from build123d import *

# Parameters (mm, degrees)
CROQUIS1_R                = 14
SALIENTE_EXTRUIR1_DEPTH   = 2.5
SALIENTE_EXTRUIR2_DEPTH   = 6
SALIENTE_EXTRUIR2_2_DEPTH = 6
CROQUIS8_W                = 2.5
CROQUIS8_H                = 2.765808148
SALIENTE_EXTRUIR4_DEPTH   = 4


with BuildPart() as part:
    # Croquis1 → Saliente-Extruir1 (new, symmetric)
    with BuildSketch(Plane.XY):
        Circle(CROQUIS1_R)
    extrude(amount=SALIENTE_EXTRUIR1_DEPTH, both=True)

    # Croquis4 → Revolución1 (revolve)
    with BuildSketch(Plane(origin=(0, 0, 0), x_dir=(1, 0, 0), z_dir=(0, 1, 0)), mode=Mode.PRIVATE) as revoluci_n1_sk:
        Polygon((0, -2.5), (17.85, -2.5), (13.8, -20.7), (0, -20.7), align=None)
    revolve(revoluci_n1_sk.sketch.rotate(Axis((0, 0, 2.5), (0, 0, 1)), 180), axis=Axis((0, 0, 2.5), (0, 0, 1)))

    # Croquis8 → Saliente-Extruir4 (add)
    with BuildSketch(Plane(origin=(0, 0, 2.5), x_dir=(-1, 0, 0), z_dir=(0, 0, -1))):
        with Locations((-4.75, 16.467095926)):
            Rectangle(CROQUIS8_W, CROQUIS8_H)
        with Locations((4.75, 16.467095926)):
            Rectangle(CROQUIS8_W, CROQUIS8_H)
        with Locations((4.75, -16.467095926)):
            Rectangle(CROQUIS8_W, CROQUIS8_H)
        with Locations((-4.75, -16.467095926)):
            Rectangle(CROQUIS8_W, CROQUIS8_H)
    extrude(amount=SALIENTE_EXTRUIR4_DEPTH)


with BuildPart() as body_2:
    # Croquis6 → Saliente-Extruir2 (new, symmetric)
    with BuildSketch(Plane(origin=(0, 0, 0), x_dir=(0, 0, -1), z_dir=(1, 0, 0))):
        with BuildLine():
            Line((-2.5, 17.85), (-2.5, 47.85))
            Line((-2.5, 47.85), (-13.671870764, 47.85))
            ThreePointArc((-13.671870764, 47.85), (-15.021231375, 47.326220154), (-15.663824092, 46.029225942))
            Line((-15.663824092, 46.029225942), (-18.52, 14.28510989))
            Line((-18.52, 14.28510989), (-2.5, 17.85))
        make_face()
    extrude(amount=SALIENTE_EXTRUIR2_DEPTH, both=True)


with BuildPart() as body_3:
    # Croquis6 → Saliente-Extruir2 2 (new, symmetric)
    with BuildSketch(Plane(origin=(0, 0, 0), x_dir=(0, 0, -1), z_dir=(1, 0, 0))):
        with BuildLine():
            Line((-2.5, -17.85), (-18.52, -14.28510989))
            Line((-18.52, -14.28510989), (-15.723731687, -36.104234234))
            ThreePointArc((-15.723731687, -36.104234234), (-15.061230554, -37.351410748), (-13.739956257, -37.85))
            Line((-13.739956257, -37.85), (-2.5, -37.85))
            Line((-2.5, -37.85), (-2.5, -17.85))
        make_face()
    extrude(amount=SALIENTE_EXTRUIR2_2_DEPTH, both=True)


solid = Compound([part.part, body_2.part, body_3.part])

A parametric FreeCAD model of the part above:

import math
import FreeCAD as App
import Part
import Sketcher

V = App.Vector

doc = App.newDocument("Part")
body = doc.addObject("PartDesign::Body", "Body")

# Sketch on XY plane
sketch1 = doc.addObject("Sketcher::SketchObject", "Sketch")
body.addObject(sketch1)
sketch1.AttachmentSupport = (doc.XY_Plane, [""])
sketch1.MapMode = "FlatFace"
sketch1.addGeometry(Part.Circle(V(0, 0, 0), V(0, 0, 1), 14), False)
sketch1.addConstraint(Sketcher.Constraint("Coincident", 0, 3, -1, 1))
sketch1.addConstraint(Sketcher.Constraint("Diameter", 0, 28.0))
pad1 = doc.addObject("PartDesign::Pad", "Pad")
body.addObject(pad1)
pad1.Profile = sketch1
pad1.Length = 5
pad1.Midplane = True

# Sketch on XZ plane
sketch2 = doc.addObject("Sketcher::SketchObject", "Sketch001")
body.addObject(sketch2)
sketch2.AttachmentSupport = (doc.XZ_Plane, [""])
sketch2.MapMode = "FlatFace"
sketch2.addGeometry(Part.LineSegment(V(17.85, 2.5, 0), V(0, 2.5, 0)), False)
sketch2.addGeometry(Part.LineSegment(V(0, 2.5, 0), V(0, 20.7, 0)), False)
sketch2.addGeometry(Part.LineSegment(V(0, 20.7, 0), V(13.8, 20.7, 0)), False)
sketch2.addGeometry(Part.LineSegment(V(13.8, 20.7, 0), V(17.85, 2.5, 0)), False)
sketch2.addConstraint(Sketcher.Constraint("Coincident", 0, 2, 1, 1))
sketch2.addConstraint(Sketcher.Constraint("Coincident", 1, 2, 2, 1))
sketch2.addConstraint(Sketcher.Constraint("Coincident", 2, 2, 3, 1))
sketch2.addConstraint(Sketcher.Constraint("Coincident", 3, 2, 0, 1))
sketch2.addConstraint(Sketcher.Constraint("Horizontal", 0))
sketch2.addConstraint(Sketcher.Constraint("Vertical", 1))
sketch2.addConstraint(Sketcher.Constraint("Horizontal", 2))
sketch2.addConstraint(Sketcher.Constraint("PointOnObject", 0, 2, -2))
sketch2.addConstraint(Sketcher.Constraint("DistanceX", 2, 1, 2, 2, 13.8))
sketch2.addConstraint(Sketcher.Constraint("DistanceY", 1, 1, 1, 2, 18.2))
sketch2.addConstraint(Sketcher.Constraint("DistanceX", 0, 2, 0, 1, 17.85))
sketch2.addConstraint(Sketcher.Constraint("DistanceY", -1, 1, 0, 2, 2.5))
revolution = doc.addObject("PartDesign::Revolution", "Revolution")
body.addObject(revolution)
revolution.Profile = sketch2
revolution.ReferenceAxis = (sketch2, ["V_Axis"])
revolution.Angle = 360

# Sketch on XY plane
sketch3 = doc.addObject("Sketcher::SketchObject", "Sketch002")
body.addObject(sketch3)
sketch3.AttachmentSupport = (doc.XY_Plane, [""])
sketch3.MapMode = "FlatFace"
sketch3.AttachmentOffset = App.Placement(V(0, 0, 2.5), App.Rotation())
sketch3.addGeometry(Part.LineSegment(V(6, 17.85, 0), V(6, 15.084192, 0)), False)
sketch3.addGeometry(Part.LineSegment(V(6, 15.084192, 0), V(3.5, 15.084192, 0)), False)
sketch3.addGeometry(Part.LineSegment(V(3.5, 15.084192, 0), V(3.5, 17.85, 0)), False)
sketch3.addGeometry(Part.LineSegment(V(3.5, 17.85, 0), V(6, 17.85, 0)), False)
sketch3.addGeometry(Part.LineSegment(V(-3.5, 17.85, 0), V(-3.5, 15.084192, 0)), False)
sketch3.addGeometry(Part.LineSegment(V(-3.5, 15.084192, 0), V(-6, 15.084192, 0)), False)
sketch3.addGeometry(Part.LineSegment(V(-6, 15.084192, 0), V(-6, 17.85, 0)), False)
sketch3.addGeometry(Part.LineSegment(V(-6, 17.85, 0), V(-3.5, 17.85, 0)), False)
sketch3.addGeometry(Part.LineSegment(V(-3.5, -15.084192, 0), V(-3.5, -17.85, 0)), False)
sketch3.addGeometry(Part.LineSegment(V(-3.5, -17.85, 0), V(-6, -17.85, 0)), False)
sketch3.addGeometry(Part.LineSegment(V(-6, -17.85, 0), V(-6, -15.084192, 0)), False)
sketch3.addGeometry(Part.LineSegment(V(-6, -15.084192, 0), V(-3.5, -15.084192, 0)), False)
sketch3.addGeometry(Part.LineSegment(V(6, -15.084192, 0), V(6, -17.85, 0)), False)
sketch3.addGeometry(Part.LineSegment(V(6, -17.85, 0), V(3.5, -17.85, 0)), False)
sketch3.addGeometry(Part.LineSegment(V(3.5, -17.85, 0), V(3.5, -15.084192, 0)), False)
sketch3.addGeometry(Part.LineSegment(V(3.5, -15.084192, 0), V(6, -15.084192, 0)), False)
sketch3.addConstraint(Sketcher.Constraint("Coincident", 0, 2, 1, 1))
sketch3.addConstraint(Sketcher.Constraint("Coincident", 1, 2, 2, 1))
sketch3.addConstraint(Sketcher.Constraint("Coincident", 2, 2, 3, 1))
sketch3.addConstraint(Sketcher.Constraint("Coincident", 3, 2, 0, 1))
sketch3.addConstraint(Sketcher.Constraint("Coincident", 4, 2, 5, 1))
sketch3.addConstraint(Sketcher.Constraint("Coincident", 5, 2, 6, 1))
sketch3.addConstraint(Sketcher.Constraint("Coincident", 6, 2, 7, 1))
sketch3.addConstraint(Sketcher.Constraint("Coincident", 7, 2, 4, 1))
sketch3.addConstraint(Sketcher.Constraint("Coincident", 8, 2, 9, 1))
sketch3.addConstraint(Sketcher.Constraint("Coincident", 9, 2, 10, 1))
sketch3.addConstraint(Sketcher.Constraint("Coincident", 10, 2, 11, 1))
sketch3.addConstraint(Sketcher.Constraint("Coincident", 11, 2, 8, 1))
sketch3.addConstraint(Sketcher.Constraint("Coincident", 12, 2, 13, 1))
sketch3.addConstraint(Sketcher.Constraint("Coincident", 13, 2, 14, 1))
sketch3.addConstraint(Sketcher.Constraint("Coincident", 14, 2, 15, 1))
sketch3.addConstraint(Sketcher.Constraint("Coincident", 15, 2, 12, 1))
sketch3.addConstraint(Sketcher.Constraint("Vertical", 0))
sketch3.addConstraint(Sketcher.Constraint("Horizontal", 1))
sketch3.addConstraint(Sketcher.Constraint("Vertical", 2))
sketch3.addConstraint(Sketcher.Constraint("Horizontal", 3))
sketch3.addConstraint(Sketcher.Constraint("Vertical", 4))
sketch3.addConstraint(Sketcher.Constraint("Horizontal", 5))
sketch3.addConstraint(Sketcher.Constraint("Vertical", 6))
sketch3.addConstraint(Sketcher.Constraint("Horizontal", 7))
sketch3.addConstraint(Sketcher.Constraint("Vertical", 8))
sketch3.addConstraint(Sketcher.Constraint("Horizontal", 9))
sketch3.addConstraint(Sketcher.Constraint("Vertical", 10))
sketch3.addConstraint(Sketcher.Constraint("Horizontal", 11))
sketch3.addConstraint(Sketcher.Constraint("Vertical", 12))
sketch3.addConstraint(Sketcher.Constraint("Horizontal", 13))
sketch3.addConstraint(Sketcher.Constraint("Vertical", 14))
sketch3.addConstraint(Sketcher.Constraint("Horizontal", 15))
sketch3.addConstraint(Sketcher.Constraint("Symmetric", 2, 2, 8, 2, -1, 1))
sketch3.addConstraint(Sketcher.Constraint("Symmetric", 0, 2, 10, 2, -1, 1))
sketch3.addConstraint(Sketcher.Constraint("Symmetric", 6, 2, 12, 2, -1, 1))
sketch3.addConstraint(Sketcher.Constraint("Symmetric", 4, 2, 14, 2, -1, 1))
sketch3.addConstraint(Sketcher.Constraint("Symmetric", 1, 2, 4, 2, -2))
sketch3.addConstraint(Sketcher.Constraint("Symmetric", 3, 2, 6, 2, -2))
sketch3.addConstraint(Sketcher.Constraint("DistanceX", 1, 2, 1, 1, 2.5))
sketch3.addConstraint(Sketcher.Constraint("DistanceX", -1, 1, 0, 2, 6.0))
sketch3.addConstraint(Sketcher.Constraint("DistanceY", 8, 2, 7, 2, 35.7))
sketch3.addConstraint(Sketcher.Constraint("DistanceY", 0, 2, 0, 1, 2.765808))
pad2 = doc.addObject("PartDesign::Pad", "Pad001")
body.addObject(pad2)
pad2.Profile = sketch3
pad2.Length = 4
pad2.Reversed = True
body2 = doc.addObject("PartDesign::Body", "Body001")

# Sketch on YZ plane
sketch4 = doc.addObject("Sketcher::SketchObject", "Sketch003")
body2.addObject(sketch4)
sketch4.AttachmentSupport = (doc.getObject("YZ_Plane001"), [""])
sketch4.MapMode = "FlatFace"
sketch4.addGeometry(Part.LineSegment(V(17.85, 2.5, 0), V(47.85, 2.5, 0)), False)
sketch4.addGeometry(Part.LineSegment(V(47.85, 2.5, 0), V(47.85, 13.671871, 0)), False)
sketch4.addGeometry(Part.ArcOfCircle(Part.Circle(V(45.85, 13.671871, 0), V(0, 0, 1), 2), math.radians(0), math.radians(84.858658)), False)
sketch4.addGeometry(Part.LineSegment(V(46.029226, 15.663824, 0), V(14.28511, 18.52, 0)), False)
sketch4.addGeometry(Part.LineSegment(V(14.28511, 18.52, 0), V(17.85, 2.5, 0)), False)
sketch4.addConstraint(Sketcher.Constraint("Coincident", 0, 2, 1, 1))
sketch4.addConstraint(Sketcher.Constraint("Tangent", 1, 2, 2, 1))
sketch4.addConstraint(Sketcher.Constraint("Tangent", 2, 2, 3, 1))
sketch4.addConstraint(Sketcher.Constraint("Coincident", 3, 2, 4, 1))
sketch4.addConstraint(Sketcher.Constraint("Coincident", 4, 2, 0, 1))
sketch4.addConstraint(Sketcher.Constraint("Horizontal", 0))
sketch4.addConstraint(Sketcher.Constraint("Vertical", 1))
sketch4.addConstraint(Sketcher.Constraint("Radius", 2, 2.0))
sketch4.addConstraint(Sketcher.Constraint("DistanceX", 0, 1, 0, 2, 30.0))
sketch4.addConstraint(Sketcher.Constraint("DistanceY", -1, 1, 0, 2, 2.5))
sketch4.addConstraint(Sketcher.Constraint("DistanceX", -1, 1, 2, 3, 45.85))
sketch4.addConstraint(Sketcher.Constraint("DistanceY", -1, 1, 3, 2, 18.52))
sketch4.addConstraint(Sketcher.Constraint("DistanceY", 1, 1, 1, 2, 11.171871))
sketch4.addConstraint(Sketcher.Constraint("Distance", 3, 31.872349))
pad3 = doc.addObject("PartDesign::Pad", "Pad002")
body2.addObject(pad3)
pad3.Profile = sketch4
pad3.Length = 12
pad3.Midplane = True
body3 = doc.addObject("PartDesign::Body", "Body002")

# Sketch on YZ plane
sketch5 = doc.addObject("Sketcher::SketchObject", "Sketch004")
body3.addObject(sketch5)
sketch5.AttachmentSupport = (doc.getObject("YZ_Plane002"), [""])
sketch5.MapMode = "FlatFace"
sketch5.addGeometry(Part.LineSegment(V(-17.85, 2.5, 0), V(-14.28511, 18.52, 0)), False)
sketch5.addGeometry(Part.LineSegment(V(-14.28511, 18.52, 0), V(-36.104234, 15.723732, 0)), False)
sketch5.addGeometry(Part.ArcOfCircle(Part.Circle(V(-35.85, 13.739956, 0), V(0, 0, 1), 2), math.radians(97.303033), math.radians(180)), False)
sketch5.addGeometry(Part.LineSegment(V(-37.85, 13.739956, 0), V(-37.85, 2.5, 0)), False)
sketch5.addGeometry(Part.LineSegment(V(-37.85, 2.5, 0), V(-17.85, 2.5, 0)), False)
sketch5.addConstraint(Sketcher.Constraint("Coincident", 0, 2, 1, 1))
sketch5.addConstraint(Sketcher.Constraint("Tangent", 1, 2, 2, 1))
sketch5.addConstraint(Sketcher.Constraint("Tangent", 2, 2, 3, 1))
sketch5.addConstraint(Sketcher.Constraint("Coincident", 3, 2, 4, 1))
sketch5.addConstraint(Sketcher.Constraint("Coincident", 4, 2, 0, 1))
sketch5.addConstraint(Sketcher.Constraint("Vertical", 3))
sketch5.addConstraint(Sketcher.Constraint("Horizontal", 4))
sketch5.addConstraint(Sketcher.Constraint("Radius", 2, 2.0))
sketch5.addConstraint(Sketcher.Constraint("DistanceX", 4, 1, 4, 2, 20.0))
sketch5.addConstraint(Sketcher.Constraint("DistanceY", -1, 1, 3, 2, 2.5))
sketch5.addConstraint(Sketcher.Constraint("DistanceX", 2, 3, -1, 1, 35.85))
sketch5.addConstraint(Sketcher.Constraint("DistanceY", -1, 1, 0, 2, 18.52))
sketch5.addConstraint(Sketcher.Constraint("Distance", 0, 16.411851))
sketch5.addConstraint(Sketcher.Constraint("DistanceY", 3, 2, 3, 1, 11.239956))
pad4 = doc.addObject("PartDesign::Pad", "Pad003")
body3.addObject(pad4)
pad4.Profile = sketch5
pad4.Length = 12
pad4.Midplane = True

doc.recompute()
